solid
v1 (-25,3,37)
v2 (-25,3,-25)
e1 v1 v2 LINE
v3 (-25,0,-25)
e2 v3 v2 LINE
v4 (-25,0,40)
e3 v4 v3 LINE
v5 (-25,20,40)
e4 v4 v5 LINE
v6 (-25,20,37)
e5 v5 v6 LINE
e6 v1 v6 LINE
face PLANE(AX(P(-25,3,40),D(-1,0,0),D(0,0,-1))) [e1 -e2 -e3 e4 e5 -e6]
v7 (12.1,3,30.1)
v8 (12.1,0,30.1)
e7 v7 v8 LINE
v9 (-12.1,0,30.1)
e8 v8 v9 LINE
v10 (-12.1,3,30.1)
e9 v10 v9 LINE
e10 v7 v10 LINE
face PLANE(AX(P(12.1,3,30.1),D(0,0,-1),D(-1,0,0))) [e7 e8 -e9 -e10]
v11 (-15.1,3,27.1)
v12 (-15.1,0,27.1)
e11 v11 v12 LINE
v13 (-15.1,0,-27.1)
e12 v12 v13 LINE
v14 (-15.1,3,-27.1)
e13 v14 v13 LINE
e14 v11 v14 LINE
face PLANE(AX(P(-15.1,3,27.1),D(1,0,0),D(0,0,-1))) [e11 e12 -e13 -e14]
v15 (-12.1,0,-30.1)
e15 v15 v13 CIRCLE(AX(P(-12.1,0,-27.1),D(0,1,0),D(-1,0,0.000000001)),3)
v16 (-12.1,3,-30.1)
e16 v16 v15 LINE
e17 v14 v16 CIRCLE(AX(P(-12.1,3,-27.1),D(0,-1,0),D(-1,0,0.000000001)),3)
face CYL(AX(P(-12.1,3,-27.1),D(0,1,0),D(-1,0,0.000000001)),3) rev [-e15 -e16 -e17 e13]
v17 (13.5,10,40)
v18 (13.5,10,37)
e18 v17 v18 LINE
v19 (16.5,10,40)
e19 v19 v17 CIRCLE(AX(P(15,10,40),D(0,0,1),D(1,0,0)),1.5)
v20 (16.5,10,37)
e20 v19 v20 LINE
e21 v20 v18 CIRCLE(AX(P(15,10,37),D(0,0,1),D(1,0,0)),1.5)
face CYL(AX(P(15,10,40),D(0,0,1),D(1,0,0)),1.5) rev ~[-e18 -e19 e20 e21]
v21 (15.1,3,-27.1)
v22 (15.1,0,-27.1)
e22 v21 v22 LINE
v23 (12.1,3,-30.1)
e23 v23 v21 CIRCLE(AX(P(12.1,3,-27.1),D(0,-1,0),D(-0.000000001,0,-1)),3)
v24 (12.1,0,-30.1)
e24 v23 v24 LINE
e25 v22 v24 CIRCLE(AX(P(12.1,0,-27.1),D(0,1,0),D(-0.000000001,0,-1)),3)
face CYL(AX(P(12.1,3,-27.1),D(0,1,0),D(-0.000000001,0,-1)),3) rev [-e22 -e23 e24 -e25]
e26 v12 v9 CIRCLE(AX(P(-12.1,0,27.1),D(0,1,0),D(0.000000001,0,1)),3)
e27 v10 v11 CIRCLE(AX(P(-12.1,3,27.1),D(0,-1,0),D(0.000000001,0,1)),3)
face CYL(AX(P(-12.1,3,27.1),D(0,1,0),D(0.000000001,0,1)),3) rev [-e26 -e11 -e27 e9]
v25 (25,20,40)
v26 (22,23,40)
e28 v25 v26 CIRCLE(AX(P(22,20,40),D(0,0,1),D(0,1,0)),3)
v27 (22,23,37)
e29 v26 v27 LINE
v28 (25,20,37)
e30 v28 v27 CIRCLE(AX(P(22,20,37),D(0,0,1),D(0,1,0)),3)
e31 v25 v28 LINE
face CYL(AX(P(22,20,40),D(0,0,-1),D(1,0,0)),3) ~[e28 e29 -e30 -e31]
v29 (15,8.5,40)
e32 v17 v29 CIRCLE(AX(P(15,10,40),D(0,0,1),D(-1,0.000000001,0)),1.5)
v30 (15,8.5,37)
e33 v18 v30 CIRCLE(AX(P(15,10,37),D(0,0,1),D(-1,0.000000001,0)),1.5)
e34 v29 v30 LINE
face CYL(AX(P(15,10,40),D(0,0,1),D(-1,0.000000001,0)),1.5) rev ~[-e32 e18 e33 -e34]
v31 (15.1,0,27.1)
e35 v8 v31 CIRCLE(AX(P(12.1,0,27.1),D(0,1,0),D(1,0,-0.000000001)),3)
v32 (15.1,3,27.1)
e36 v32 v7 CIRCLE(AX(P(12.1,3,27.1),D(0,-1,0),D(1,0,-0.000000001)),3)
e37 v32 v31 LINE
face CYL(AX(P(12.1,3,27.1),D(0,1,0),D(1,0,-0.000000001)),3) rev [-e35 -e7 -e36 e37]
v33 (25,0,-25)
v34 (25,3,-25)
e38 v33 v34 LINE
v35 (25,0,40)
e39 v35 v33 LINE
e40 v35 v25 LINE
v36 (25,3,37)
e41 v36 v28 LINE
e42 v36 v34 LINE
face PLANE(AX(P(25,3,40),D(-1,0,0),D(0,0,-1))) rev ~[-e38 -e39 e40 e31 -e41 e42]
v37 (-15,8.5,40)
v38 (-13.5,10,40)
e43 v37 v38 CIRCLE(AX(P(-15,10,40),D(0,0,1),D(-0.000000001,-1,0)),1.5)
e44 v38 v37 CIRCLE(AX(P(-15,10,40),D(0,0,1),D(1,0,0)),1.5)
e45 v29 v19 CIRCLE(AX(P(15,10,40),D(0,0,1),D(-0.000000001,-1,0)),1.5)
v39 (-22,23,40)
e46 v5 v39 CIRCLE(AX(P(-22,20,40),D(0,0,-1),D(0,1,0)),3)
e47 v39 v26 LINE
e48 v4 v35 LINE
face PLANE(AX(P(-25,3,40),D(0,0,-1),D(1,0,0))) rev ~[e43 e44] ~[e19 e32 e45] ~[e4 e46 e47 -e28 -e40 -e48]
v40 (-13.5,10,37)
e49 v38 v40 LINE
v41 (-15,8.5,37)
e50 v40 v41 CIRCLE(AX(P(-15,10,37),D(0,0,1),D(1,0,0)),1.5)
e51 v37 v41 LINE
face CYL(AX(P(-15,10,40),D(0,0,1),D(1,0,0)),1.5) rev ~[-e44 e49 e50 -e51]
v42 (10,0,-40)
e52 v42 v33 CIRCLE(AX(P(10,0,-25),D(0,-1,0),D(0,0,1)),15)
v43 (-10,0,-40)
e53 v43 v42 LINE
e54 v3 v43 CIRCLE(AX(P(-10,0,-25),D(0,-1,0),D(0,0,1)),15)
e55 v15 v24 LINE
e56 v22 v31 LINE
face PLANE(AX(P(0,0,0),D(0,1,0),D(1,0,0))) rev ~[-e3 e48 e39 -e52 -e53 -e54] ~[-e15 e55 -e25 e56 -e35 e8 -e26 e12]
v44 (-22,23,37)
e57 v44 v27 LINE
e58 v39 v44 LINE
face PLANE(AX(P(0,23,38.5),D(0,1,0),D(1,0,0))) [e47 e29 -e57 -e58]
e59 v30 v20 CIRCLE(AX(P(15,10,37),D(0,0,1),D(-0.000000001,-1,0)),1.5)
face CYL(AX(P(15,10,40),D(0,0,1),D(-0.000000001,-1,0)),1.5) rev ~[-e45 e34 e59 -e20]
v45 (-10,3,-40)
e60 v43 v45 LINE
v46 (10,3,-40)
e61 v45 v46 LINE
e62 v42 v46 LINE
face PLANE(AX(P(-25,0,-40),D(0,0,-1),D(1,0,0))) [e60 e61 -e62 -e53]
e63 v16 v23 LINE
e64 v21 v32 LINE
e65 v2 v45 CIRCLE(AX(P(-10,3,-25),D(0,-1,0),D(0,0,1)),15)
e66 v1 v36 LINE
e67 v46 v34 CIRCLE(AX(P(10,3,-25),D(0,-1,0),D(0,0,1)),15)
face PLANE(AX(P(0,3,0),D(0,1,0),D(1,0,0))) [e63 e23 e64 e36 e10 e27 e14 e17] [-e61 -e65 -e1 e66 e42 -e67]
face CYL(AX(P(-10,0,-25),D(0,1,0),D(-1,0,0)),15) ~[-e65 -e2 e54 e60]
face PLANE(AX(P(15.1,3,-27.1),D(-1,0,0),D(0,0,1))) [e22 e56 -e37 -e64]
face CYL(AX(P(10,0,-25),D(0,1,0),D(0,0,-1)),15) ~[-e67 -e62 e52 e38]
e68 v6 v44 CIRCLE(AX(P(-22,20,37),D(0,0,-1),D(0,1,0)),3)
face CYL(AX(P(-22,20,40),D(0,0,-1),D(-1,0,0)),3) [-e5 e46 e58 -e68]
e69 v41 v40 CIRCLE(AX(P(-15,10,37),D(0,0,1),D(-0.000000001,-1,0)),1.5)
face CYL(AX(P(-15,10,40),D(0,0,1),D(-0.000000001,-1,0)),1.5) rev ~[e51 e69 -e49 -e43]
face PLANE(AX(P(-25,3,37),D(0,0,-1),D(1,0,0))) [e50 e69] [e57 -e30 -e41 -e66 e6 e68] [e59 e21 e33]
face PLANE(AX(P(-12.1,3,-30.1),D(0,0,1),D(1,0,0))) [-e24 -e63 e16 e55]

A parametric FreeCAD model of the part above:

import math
import FreeCAD as App
import Part
import Sketcher
Q = App.Units.Quantity


def edges_at(feature, points):
    """Names of the edges that pass closest to the given points."""
    edges = feature.Shape.Edges
    near = lambda p: min(range(len(edges)), key=lambda i: edges[i].distToShape(Part.Vertex(*p))[0])
    return sorted({f"Edge{near(p) + 1}" for p in points})

doc = App.newDocument("Part")
body = doc.addObject("PartDesign::Body", "Body")

# Sketch on XZ plane
sketch1 = body.newObject("Sketcher::SketchObject", "Sketch")
sketch1.AttachmentSupport = (doc.getObject("XZ_Plane"), [""])
sketch1.MapMode = "FlatFace"
sketch1.addGeometry(Part.LineSegment(App.Vector(-25, -40, 0), App.Vector(-25, 40, 0)), False)
sketch1.addGeometry(Part.LineSegment(App.Vector(-25, 40, 0), App.Vector(25, 40, 0)), False)
sketch1.addGeometry(Part.LineSegment(App.Vector(25, 40, 0), App.Vector(25, -40, 0)), False)
sketch1.addGeometry(Part.LineSegment(App.Vector(25, -40, 0), App.Vector(-25, -40, 0)), False)
sketch1.addConstraint(Sketcher.Constraint("Coincident", 0, 2, 1, 1))
sketch1.addConstraint(Sketcher.Constraint("Coincident", 1, 2, 2, 1))
sketch1.addConstraint(Sketcher.Constraint("Coincident", 2, 2, 3, 1))
sketch1.addConstraint(Sketcher.Constraint("Coincident", 3, 2, 0, 1))
sketch1.addConstraint(Sketcher.Constraint("Vertical", 0))
sketch1.addConstraint(Sketcher.Constraint("Horizontal", 1))
sketch1.addConstraint(Sketcher.Constraint("Vertical", 2))
sketch1.addConstraint(Sketcher.Constraint("Horizontal", 3))
sketch1.addConstraint(Sketcher.Constraint("Symmetric", 0, 2, 2, 2, -1, 1))
sketch1.addConstraint(Sketcher.Constraint("DistanceX", 1, 1, 1, 2, Q("50 mm")))
sketch1.addConstraint(Sketcher.Constraint("DistanceY", 0, 1, 0, 2, Q("80 mm")))
pad1 = body.newObject("PartDesign::Pad", "Pad")
pad1.Profile = sketch1
pad1.Length = 3
pad1.Reversed = True

# Sketch on XZ plane
sketch2 = body.newObject("Sketcher::SketchObject", "Sketch001")
sketch2.AttachmentSupport = (doc.getObject("XZ_Plane"), [""])
sketch2.MapMode = "FlatFace"
sketch2.AttachmentOffset = App.Placement(App.Vector(0, 0, -3), App.Rotation())
sketch2.addGeometry(Part.LineSegment(App.Vector(-25, 37, 0), App.Vector(-25, 40, 0)), False)
sketch2.addGeometry(Part.LineSegment(App.Vector(-25, 40, 0), App.Vector(25, 40, 0)), False)
sketch2.addGeometry(Part.LineSegment(App.Vector(25, 40, 0), App.Vector(25, 37, 0)), False)
sketch2.addGeometry(Part.LineSegment(App.Vector(25, 37, 0), App.Vector(-25, 37, 0)), False)
sketch2.addConstraint(Sketcher.Constraint("Coincident", 0, 2, 1, 1))
sketch2.addConstraint(Sketcher.Constraint("Coincident", 1, 2, 2, 1))
sketch2.addConstraint(Sketcher.Constraint("Coincident", 2, 2, 3, 1))
sketch2.addConstraint(Sketcher.Constraint("Coincident", 3, 2, 0, 1))
sketch2.addConstraint(Sketcher.Constraint("Vertical", 0))
sketch2.addConstraint(Sketcher.Constraint("Horizontal", 1))
sketch2.addConstraint(Sketcher.Constraint("Vertical", 2))
sketch2.addConstraint(Sketcher.Constraint("Horizontal", 3))
sketch2.addConstraint(Sketcher.Constraint("DistanceX", 1, 1, 1, 2, Q("50 mm")))
sketch2.addConstraint(Sketcher.Constraint("DistanceY", 0, 1, 0, 2, Q("3 mm")))
sketch2.addConstraint(Sketcher.Constraint("DistanceX", 0, 2, -1, 1, Q("25 mm")))
sketch2.addConstraint(Sketcher.Constraint("DistanceY", -1, 1, 0, 2, Q("40 mm")))
pad2 = body.newObject("PartDesign::Pad", "Pad001")
pad2.Profile = sketch2
pad2.Length = 20
pad2.Reversed = True
doc.recompute()

fillet = body.newObject("PartDesign::Fillet", "Fillet")
fillet.Base = (pad2, edges_at(pad2, [(-25, 23, 38.5), (25, 23, 38.5)]))
fillet.Radius = 3
doc.recompute()

fillet2 = body.newObject("PartDesign::Fillet", "Fillet001")
fillet2.Base = (fillet, edges_at(fillet, [(-25, 1.5, -40), (25, 1.5, -40)]))
fillet2.Radius = 15

# Sketch on XZ plane
sketch3 = body.newObject("Sketcher::SketchObject", "Sketch002")
sketch3.AttachmentSupport = (doc.getObject("XZ_Plane"), [""])
sketch3.MapMode = "FlatFace"
sketch3.AttachmentOffset = App.Placement(App.Vector(0, 0, -3), App.Rotation())
sketch3.addGeometry(Part.LineSegment(App.Vector(12.1, -30.1, 0), App.Vector(-12.1, -30.1, 0)), False)
sketch3.addGeometry(Part.ArcOfCircle(Part.Circle(App.Vector(-12.1, -27.1, 0), App.Vector(0, 0, 1), 3), math.radians(180), math.radians(270)), False)
sketch3.addGeometry(Part.LineSegment(App.Vector(-15.1, -27.1, 0), App.Vector(-15.1, 27.1, 0)), False)
sketch3.addGeometry(Part.ArcOfCircle(Part.Circle(App.Vector(-12.1, 27.1, 0), App.Vector(0, 0, 1), 3), math.radians(90), math.radians(180)), False)
sketch3.addGeometry(Part.LineSegment(App.Vector(-12.1, 30.1, 0), App.Vector(12.1, 30.1, 0)), False)
sketch3.addGeometry(Part.ArcOfCircle(Part.Circle(App.Vector(12.1, 27.1, 0), App.Vector(0, 0, 1), 3), math.radians(0), math.radians(90)), False)
sketch3.addGeometry(Part.LineSegment(App.Vector(15.1, 27.1, 0), App.Vector(15.1, -27.1, 0)), False)
sketch3.addGeometry(Part.ArcOfCircle(Part.Circle(App.Vector(12.1, -27.1, 0), App.Vector(0, 0, 1), 3), math.radians(-90), math.radians(0)), False)
sketch3.addConstraint(Sketcher.Constraint("Tangent", 0, 2, 1, 2))
sketch3.addConstraint(Sketcher.Constraint("Tangent", 1, 1, 2, 1))
sketch3.addConstraint(Sketcher.Constraint("Tangent", 2, 2, 3, 2))
sketch3.addConstraint(Sketcher.Constraint("Tangent", 3, 1, 4, 1))
sketch3.addConstraint(Sketcher.Constraint("Tangent", 4, 2, 5, 2))
sketch3.addConstraint(Sketcher.Constraint("Tangent", 5, 1, 6, 1))
sketch3.addConstraint(Sketcher.Constraint("Tangent", 6, 2, 7, 2))
sketch3.addConstraint(Sketcher.Constraint("Tangent", 7, 1, 0, 1))
sketch3.addConstraint(Sketcher.Constraint("Horizontal", 0))
sketch3.addConstraint(Sketcher.Constraint("Vertical", 2))
sketch3.addConstraint(Sketcher.Constraint("Horizontal", 4))
sketch3.addConstraint(Sketcher.Constraint("Vertical", 6))
sketch3.addConstraint(Sketcher.Constraint("Equal", 1, 3))
sketch3.addConstraint(Sketcher.Constraint("Equal", 3, 5))
sketch3.addConstraint(Sketcher.Constraint("Equal", 5, 7))
sketch3.addConstraint(Sketcher.Constraint("Symmetric", 1, 3, 5, 3, -1, 1))
sketch3.addConstraint(Sketcher.Constraint("Radius", 1, Q("3 mm")))
sketch3.addConstraint(Sketcher.Constraint("DistanceX", 0, 2, 0, 1, Q("24.2 mm")))
sketch3.addConstraint(Sketcher.Constraint("DistanceY", 2, 1, 2, 2, Q("54.2 mm")))
pocket1 = body.newObject("PartDesign::Pocket", "Pocket")
pocket1.Profile = sketch3
pocket1.Type = "ThroughAll"
pocket1.Reversed = True

# Sketch on XY plane
sketch4 = body.newObject("Sketcher::SketchObject", "Sketch003")
sketch4.AttachmentSupport = (doc.getObject("XY_Plane"), [""])
sketch4.MapMode = "FlatFace"
sketch4.AttachmentOffset = App.Placement(App.Vector(0, 0, 40), App.Rotation())
sketch4.addGeometry(Part.ArcOfCircle(Part.Circle(App.Vector(-15, 10, 0), App.Vector(0, 0, 1), 1.5), math.radians(0), math.radians(270)), False)
sketch4.addGeometry(Part.ArcOfCircle(Part.Circle(App.Vector(-15, 10, 0), App.Vector(0, 0, 1), 1.5), math.radians(-90), math.radians(0)), False)
sketch4.addGeometry(Part.ArcOfCircle(Part.Circle(App.Vector(15, 10, 0), App.Vector(0, 0, 1), 1.5), math.radians(0), math.radians(180)), False)
sketch4.addGeometry(Part.ArcOfCircle(Part.Circle(App.Vector(15, 10, 0), App.Vector(0, 0, 1), 1.5), math.radians(180), math.radians(270)), False)
sketch4.addGeometry(Part.ArcOfCircle(Part.Circle(App.Vector(15, 10, 0), App.Vector(0, 0, 1), 1.5), math.radians(-90), math.radians(0)), False)
sketch4.addConstraint(Sketcher.Constraint("Tangent", 0, 1, 1, 2))
sketch4.addConstraint(Sketcher.Constraint("Coincident", 1, 1, 0, 2))
sketch4.addConstraint(Sketcher.Constraint("Tangent", 2, 2, 3, 1))
sketch4.addConstraint(Sketcher.Constraint("Tangent", 3, 2, 4, 1))
sketch4.addConstraint(Sketcher.Constraint("Tangent", 4, 2, 2, 1))
sketch4.addConstraint(Sketcher.Constraint("Equal", 1, 2))
sketch4.addConstraint(Sketcher.Constraint("Symmetric", 0, 3, 2, 3, -2))
sketch4.addConstraint(Sketcher.Constraint("Horizontal", 4, 3, 0, 1))
sketch4.addConstraint(Sketcher.Constraint("Horizontal", 0, 1, 2, 2))
sketch4.addConstraint(Sketcher.Constraint("Horizontal", 2, 2, 4, 2))
sketch4.addConstraint(Sketcher.Constraint("Vertical", 0, 3, 1, 1))
sketch4.addConstraint(Sketcher.Constraint("Vertical", 4, 3, 3, 2))
sketch4.addConstraint(Sketcher.Constraint("Radius", 0, Q("1.5 mm")))
sketch4.addConstraint(Sketcher.Constraint("DistanceX", 0, 3, -1, 1, Q("15 mm")))
sketch4.addConstraint(Sketcher.Constraint("DistanceY", -1, 1, 0, 3, Q("10 mm")))
pocket2 = body.newObject("PartDesign::Pocket", "Pocket001")
pocket2.Profile = sketch4
pocket2.Type = "ThroughAll"

doc.recompute()
